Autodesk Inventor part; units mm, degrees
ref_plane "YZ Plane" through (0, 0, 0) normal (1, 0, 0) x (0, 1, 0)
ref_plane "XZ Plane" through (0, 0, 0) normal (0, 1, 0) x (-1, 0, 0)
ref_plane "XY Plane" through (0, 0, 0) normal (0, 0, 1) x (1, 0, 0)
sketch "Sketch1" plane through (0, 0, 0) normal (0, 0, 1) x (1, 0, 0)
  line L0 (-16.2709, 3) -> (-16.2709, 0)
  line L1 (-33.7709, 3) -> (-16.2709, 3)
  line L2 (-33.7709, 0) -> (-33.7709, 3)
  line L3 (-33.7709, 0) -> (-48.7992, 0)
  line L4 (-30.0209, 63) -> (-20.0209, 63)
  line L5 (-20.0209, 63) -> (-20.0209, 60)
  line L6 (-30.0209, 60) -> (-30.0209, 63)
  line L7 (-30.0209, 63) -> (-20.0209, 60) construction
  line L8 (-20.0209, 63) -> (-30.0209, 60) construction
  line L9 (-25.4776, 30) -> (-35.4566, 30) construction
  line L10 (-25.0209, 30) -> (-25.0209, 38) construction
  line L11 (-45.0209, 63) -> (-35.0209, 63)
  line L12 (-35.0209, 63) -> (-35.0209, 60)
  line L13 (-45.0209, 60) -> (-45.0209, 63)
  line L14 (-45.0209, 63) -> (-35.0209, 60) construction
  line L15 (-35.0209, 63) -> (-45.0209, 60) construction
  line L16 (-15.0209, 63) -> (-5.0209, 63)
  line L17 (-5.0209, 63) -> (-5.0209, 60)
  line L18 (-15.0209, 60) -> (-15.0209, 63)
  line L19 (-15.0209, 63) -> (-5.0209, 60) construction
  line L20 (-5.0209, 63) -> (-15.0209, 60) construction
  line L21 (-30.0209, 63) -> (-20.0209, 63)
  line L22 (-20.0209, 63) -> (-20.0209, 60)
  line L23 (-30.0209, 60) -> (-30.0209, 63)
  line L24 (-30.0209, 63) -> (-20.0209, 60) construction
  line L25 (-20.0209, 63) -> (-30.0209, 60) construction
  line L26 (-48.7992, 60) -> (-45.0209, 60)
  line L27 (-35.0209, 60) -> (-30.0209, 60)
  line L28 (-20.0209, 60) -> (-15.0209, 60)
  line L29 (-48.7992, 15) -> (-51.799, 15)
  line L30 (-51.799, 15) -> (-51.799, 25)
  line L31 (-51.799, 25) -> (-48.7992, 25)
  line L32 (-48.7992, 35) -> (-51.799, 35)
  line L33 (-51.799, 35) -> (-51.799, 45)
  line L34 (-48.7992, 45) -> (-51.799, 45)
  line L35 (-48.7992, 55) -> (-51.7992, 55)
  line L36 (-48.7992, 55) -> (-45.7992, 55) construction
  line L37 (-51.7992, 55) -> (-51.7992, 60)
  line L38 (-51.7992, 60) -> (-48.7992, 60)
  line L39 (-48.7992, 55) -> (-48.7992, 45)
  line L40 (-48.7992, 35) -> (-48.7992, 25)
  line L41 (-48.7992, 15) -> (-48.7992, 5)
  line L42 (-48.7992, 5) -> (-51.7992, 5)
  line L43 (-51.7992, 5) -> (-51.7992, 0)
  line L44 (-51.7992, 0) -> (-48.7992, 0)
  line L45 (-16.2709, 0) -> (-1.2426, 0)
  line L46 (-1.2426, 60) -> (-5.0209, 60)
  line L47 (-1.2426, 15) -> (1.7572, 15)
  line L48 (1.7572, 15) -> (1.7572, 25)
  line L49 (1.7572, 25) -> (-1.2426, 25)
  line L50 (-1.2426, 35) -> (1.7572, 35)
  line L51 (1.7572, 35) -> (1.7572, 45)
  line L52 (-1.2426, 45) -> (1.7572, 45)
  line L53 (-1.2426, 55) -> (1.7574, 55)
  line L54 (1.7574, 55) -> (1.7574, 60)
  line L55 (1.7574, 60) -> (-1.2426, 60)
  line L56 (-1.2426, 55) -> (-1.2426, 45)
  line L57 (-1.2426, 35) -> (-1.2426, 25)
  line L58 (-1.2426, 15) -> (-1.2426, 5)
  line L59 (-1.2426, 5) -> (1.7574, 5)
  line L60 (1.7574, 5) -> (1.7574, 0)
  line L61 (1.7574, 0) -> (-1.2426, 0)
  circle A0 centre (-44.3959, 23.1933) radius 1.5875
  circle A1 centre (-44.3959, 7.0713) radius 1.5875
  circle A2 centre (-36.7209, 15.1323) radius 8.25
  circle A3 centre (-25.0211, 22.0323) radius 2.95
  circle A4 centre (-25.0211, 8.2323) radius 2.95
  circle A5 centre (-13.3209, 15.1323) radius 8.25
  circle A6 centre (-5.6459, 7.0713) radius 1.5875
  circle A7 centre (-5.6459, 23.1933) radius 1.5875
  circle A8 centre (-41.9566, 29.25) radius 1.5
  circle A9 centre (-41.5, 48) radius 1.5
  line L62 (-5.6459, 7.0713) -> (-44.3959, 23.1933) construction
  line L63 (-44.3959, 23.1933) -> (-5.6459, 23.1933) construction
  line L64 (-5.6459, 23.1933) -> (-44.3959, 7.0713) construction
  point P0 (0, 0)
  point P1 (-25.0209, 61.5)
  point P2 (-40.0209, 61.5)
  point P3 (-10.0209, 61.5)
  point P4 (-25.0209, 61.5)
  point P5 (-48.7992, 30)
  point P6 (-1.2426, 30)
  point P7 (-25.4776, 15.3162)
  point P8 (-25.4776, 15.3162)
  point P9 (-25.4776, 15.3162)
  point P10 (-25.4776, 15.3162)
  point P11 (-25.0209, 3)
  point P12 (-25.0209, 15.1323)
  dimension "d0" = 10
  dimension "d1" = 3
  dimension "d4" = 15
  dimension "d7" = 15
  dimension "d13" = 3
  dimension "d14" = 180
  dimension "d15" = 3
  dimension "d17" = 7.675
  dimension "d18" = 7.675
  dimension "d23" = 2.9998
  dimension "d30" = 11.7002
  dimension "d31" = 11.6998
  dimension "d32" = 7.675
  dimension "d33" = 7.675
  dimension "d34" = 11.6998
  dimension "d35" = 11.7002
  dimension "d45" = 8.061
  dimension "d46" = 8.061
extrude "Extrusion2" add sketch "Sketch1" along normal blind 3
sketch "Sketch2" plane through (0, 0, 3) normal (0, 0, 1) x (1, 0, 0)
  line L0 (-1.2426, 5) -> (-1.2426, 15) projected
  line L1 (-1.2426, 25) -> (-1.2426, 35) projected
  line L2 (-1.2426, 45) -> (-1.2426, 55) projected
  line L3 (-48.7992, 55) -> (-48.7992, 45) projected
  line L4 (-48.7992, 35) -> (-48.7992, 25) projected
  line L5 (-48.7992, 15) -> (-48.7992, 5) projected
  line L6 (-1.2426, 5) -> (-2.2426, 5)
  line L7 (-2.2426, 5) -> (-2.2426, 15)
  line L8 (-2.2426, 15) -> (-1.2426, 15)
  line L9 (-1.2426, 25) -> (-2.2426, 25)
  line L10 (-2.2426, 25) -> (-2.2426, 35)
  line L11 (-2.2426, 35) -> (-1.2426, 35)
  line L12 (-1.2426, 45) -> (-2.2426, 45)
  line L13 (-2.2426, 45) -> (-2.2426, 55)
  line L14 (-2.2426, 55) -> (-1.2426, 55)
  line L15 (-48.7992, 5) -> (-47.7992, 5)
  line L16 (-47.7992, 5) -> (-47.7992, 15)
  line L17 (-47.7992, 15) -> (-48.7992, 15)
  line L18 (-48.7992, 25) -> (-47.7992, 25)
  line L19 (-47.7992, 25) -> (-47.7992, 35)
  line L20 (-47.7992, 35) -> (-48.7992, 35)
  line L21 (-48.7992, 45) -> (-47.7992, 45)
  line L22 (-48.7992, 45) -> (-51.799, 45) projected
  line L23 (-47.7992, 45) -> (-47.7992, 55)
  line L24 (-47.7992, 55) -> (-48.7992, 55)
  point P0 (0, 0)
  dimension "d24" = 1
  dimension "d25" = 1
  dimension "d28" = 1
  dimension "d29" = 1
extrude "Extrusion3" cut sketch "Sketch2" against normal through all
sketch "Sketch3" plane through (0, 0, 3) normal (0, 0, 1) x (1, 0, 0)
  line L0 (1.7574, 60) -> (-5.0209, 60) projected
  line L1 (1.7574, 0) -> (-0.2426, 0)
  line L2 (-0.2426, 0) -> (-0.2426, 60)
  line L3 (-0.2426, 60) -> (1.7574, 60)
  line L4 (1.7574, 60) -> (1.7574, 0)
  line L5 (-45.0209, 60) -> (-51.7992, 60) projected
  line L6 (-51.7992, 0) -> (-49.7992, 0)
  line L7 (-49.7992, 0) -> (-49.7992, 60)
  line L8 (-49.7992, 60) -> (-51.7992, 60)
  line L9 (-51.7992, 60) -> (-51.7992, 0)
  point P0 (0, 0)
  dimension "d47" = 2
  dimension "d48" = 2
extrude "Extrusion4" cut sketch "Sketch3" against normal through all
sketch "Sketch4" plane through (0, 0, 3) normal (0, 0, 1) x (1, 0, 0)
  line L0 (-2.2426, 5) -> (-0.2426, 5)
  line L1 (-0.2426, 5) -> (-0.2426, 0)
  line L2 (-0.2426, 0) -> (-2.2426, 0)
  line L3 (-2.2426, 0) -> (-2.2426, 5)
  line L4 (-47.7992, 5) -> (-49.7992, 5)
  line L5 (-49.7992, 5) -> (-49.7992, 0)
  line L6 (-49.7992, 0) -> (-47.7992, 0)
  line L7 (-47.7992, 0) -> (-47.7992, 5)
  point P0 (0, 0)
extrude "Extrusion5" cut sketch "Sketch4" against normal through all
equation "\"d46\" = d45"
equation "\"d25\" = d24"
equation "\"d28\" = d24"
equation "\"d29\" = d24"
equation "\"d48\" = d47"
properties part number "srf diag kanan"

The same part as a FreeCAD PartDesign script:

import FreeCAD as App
import Part
import Sketcher
Q = App.Units.Quantity


def add_polygon(sketch, points):
    """Adds a closed chain of lines whose ends are joined by coincident constraints."""
    first, n = sketch.GeometryCount, len(points)
    for a, b in zip(points, points[1:] + points[:1]):
        sketch.addGeometry(Part.LineSegment(App.Vector(*a, 0), App.Vector(*b, 0)), False)
    for i in range(n):
        sketch.addConstraint(Sketcher.Constraint("Coincident", first + i, 2, first + (i + 1) % n, 1))

doc = App.newDocument("Part")
params = doc.addObject("Spreadsheet::Sheet", "Params")
for row, (alias, value) in enumerate([
    ("sketch1_diameter", "3 mm"),
    ("sketch1_width", "3 mm"),
    ("sketch1_width2", "10 mm"),
    ("sketch1_diameter2", "16.5 mm"),
    ("sketch1_diameter3", "5.9 mm"),
    ("pad1_length", "3 mm"),
    ("sketch2_width", "1 mm"),
    ("sketch2_height", "10 mm"),
    ("sketch3_width", "2 mm"),
    ("sketch3_height", "60 mm"),
    ("sketch4_width", "2 mm"),
    ("sketch4_height", "5 mm"),
], start=1):
    params.set(f"A{row}", alias)
    params.set(f"B{row}", "=" + value)
    params.setAlias(f"B{row}", alias)

body = doc.addObject("PartDesign::Body", "Body")

sketch1 = body.newObject("Sketcher::SketchObject", "Sketch")
sketch1.AttachmentSupport = (doc.getObject("XY_Plane"), [""])
sketch1.MapMode = "FlatFace"
add_polygon(sketch1, [(-33.8, 3), (-16.3, 3), (-16.3, 0), (1.8, 0), (1.8, 5), (-1.2, 5), (-1.2, 15), (1.8, 15), (1.8, 25), (-1.2, 25), (-1.2, 35), (1.8, 35), (1.8, 45), (-1.2, 45), (-1.2, 55), (1.8, 55), (1.8, 60), (-5, 60), (-5, 63), (-15, 63), (-15, 60), (-20, 60), (-20, 63), (-30, 63), (-30, 60), (-35, 60), (-35, 63), (-45, 63), (-45, 60), (-51.8, 60), (-51.8, 55), (-48.8, 55), (-48.8, 45), (-51.8, 45), (-51.8, 35), (-48.8, 35), (-48.8, 25), (-51.8, 25), (-51.8, 15), (-48.8, 15), (-48.8, 5), (-51.8, 5), (-51.8, 0), (-33.8, 0)])
sketch1.addGeometry(Part.Circle(App.Vector(-44.4, 7.1, 0), App.Vector(0, 0, 1), 1.6), False)
sketch1.addGeometry(Part.Circle(App.Vector(-36.7, 15.1, 0), App.Vector(0, 0, 1), 8.2), False)
sketch1.addGeometry(Part.Circle(App.Vector(-25, 8.2, 0), App.Vector(0, 0, 1), 3), False)
sketch1.addGeometry(Part.Circle(App.Vector(-44.4, 23.2, 0), App.Vector(0, 0, 1), 1.6), False)
sketch1.addGeometry(Part.Circle(App.Vector(-42, 29.2, 0), App.Vector(0, 0, 1), 1.5), False)
sketch1.addGeometry(Part.Circle(App.Vector(-25, 22, 0), App.Vector(0, 0, 1), 3), False)
sketch1.addGeometry(Part.Circle(App.Vector(-13.3, 15.1, 0), App.Vector(0, 0, 1), 8.2), False)
sketch1.addGeometry(Part.Circle(App.Vector(-5.6, 7.1, 0), App.Vector(0, 0, 1), 1.6), False)
sketch1.addGeometry(Part.Circle(App.Vector(-5.6, 23.2, 0), App.Vector(0, 0, 1), 1.6), False)
sketch1.addGeometry(Part.Circle(App.Vector(-41.5, 48, 0), App.Vector(0, 0, 1), 1.5), False)
sketch1.addConstraint([
    Sketcher.Constraint("Horizontal", 0),
    Sketcher.Constraint("Vertical", 1),
    Sketcher.Constraint("Horizontal", 2),
    Sketcher.Constraint("Vertical", 3),
    Sketcher.Constraint("Horizontal", 4),
    Sketcher.Constraint("Vertical", 5),
    Sketcher.Constraint("Horizontal", 6),
    Sketcher.Constraint("Vertical", 7),
    Sketcher.Constraint("Horizontal", 8),
    Sketcher.Constraint("Vertical", 9),
    Sketcher.Constraint("Horizontal", 10),
    Sketcher.Constraint("Vertical", 11),
    Sketcher.Constraint("Horizontal", 12),
    Sketcher.Constraint("Vertical", 13),
    Sketcher.Constraint("Horizontal", 14),
    Sketcher.Constraint("Vertical", 15),
    Sketcher.Constraint("Horizontal", 16),
    Sketcher.Constraint("Vertical", 17),
    Sketcher.Constraint("Horizontal", 18),
    Sketcher.Constraint("Vertical", 19),
    Sketcher.Constraint("Horizontal", 20),
    Sketcher.Constraint("Vertical", 21),
    Sketcher.Constraint("Horizontal", 22),
    Sketcher.Constraint("Vertical", 23),
    Sketcher.Constraint("Horizontal", 24),
    Sketcher.Constraint("Vertical", 25),
    Sketcher.Constraint("Horizontal", 26),
    Sketcher.Constraint("Vertical", 27),
    Sketcher.Constraint("Horizontal", 28),
    Sketcher.Constraint("Vertical", 29),
    Sketcher.Constraint("Horizontal", 30),
    Sketcher.Constraint("Vertical", 31),
    Sketcher.Constraint("Horizontal", 32),
    Sketcher.Constraint("Vertical", 33),
    Sketcher.Constraint("Horizontal", 34),
    Sketcher.Constraint("Vertical", 35),
    Sketcher.Constraint("Horizontal", 36),
    Sketcher.Constraint("Vertical", 37),
    Sketcher.Constraint("Horizontal", 38),
    Sketcher.Constraint("Vertical", 39),
    Sketcher.Constraint("Horizontal", 40),
    Sketcher.Constraint("Vertical", 41),
    Sketcher.Constraint("Horizontal", 42),
    Sketcher.Constraint("Vertical", 43),
    Sketcher.Constraint("Equal", 44, 47),
    Sketcher.Constraint("Equal", 46, 49),
    Sketcher.Constraint("Equal", 45, 50),
    Sketcher.Constraint("Equal", 47, 51),
    Sketcher.Constraint("Equal", 51, 52),
    Sketcher.Constraint("Equal", 48, 53),
    Sketcher.Constraint("PointOnObject", 1, 2, -1),
    Sketcher.Constraint("PointOnObject", 41, 2, -1),
    Sketcher.Constraint("Horizontal", 45, 3, 50, 3),
    Sketcher.Constraint("Horizontal", 44, 3, 51, 3),
    Sketcher.Constraint("Horizontal", 47, 3, 52, 3),
    Sketcher.Constraint("Horizontal", 16, 2, 19, 2),
    Sketcher.Constraint("Horizontal", 18, 2, 21, 2),
    Sketcher.Constraint("Horizontal", 20, 2, 23, 2),
    Sketcher.Constraint("Horizontal", 22, 2, 25, 2),
    Sketcher.Constraint("Horizontal", 24, 2, 27, 2),
    Sketcher.Constraint("Horizontal", 14, 2, 29, 2),
    Sketcher.Constraint("Horizontal", 12, 2, 31, 2),
    Sketcher.Constraint("Horizontal", 10, 2, 33, 2),
    Sketcher.Constraint("Horizontal", 8, 2, 35, 2),
    Sketcher.Constraint("Horizontal", 6, 2, 37, 2),
    Sketcher.Constraint("Horizontal", 4, 2, 39, 2),
    Sketcher.Constraint("Vertical", 44, 3, 47, 3),
    Sketcher.Constraint("Vertical", 46, 3, 49, 3),
    Sketcher.Constraint("Vertical", 51, 3, 52, 3),
    Sketcher.Constraint("Vertical", 3, 2, 6, 2),
    Sketcher.Constraint("Vertical", 5, 2, 8, 2),
    Sketcher.Constraint("Vertical", 7, 2, 10, 2),
    Sketcher.Constraint("Vertical", 9, 2, 12, 2),
    Sketcher.Constraint("Vertical", 11, 2, 14, 2),
    Sketcher.Constraint("Vertical", 29, 2, 32, 2),
    Sketcher.Constraint("Vertical", 31, 2, 34, 2),
    Sketcher.Constraint("Vertical", 33, 2, 36, 2),
    Sketcher.Constraint("Vertical", 35, 2, 38, 2),
    Sketcher.Constraint("Vertical", 37, 2, 40, 2),
    Sketcher.Constraint("Equal", 18, 22),
    Sketcher.Constraint("Equal", 20, 24),
    Sketcher.Constraint("Equal", 22, 26),
    Sketcher.Constraint("Equal", 16, 28),
    Sketcher.Constraint("Equal", 14, 30),
    Sketcher.Constraint("Equal", 2, 42),
    Sketcher.Constraint("Equal", 40, 1),
    Sketcher.Constraint("Equal", 24, 3),
    Sketcher.Constraint("Equal", 26, 5),
    Sketcher.Constraint("Equal", 5, 7),
    Sketcher.Constraint("Equal", 7, 9),
    Sketcher.Constraint("Equal", 9, 11),
    Sketcher.Constraint("Equal", 11, 13),
    Sketcher.Constraint("Equal", 3, 15),
    Sketcher.Constraint("Equal", 1, 17),
    Sketcher.Constraint("Diameter", 48, Q("3 mm")),
    Sketcher.Constraint("DistanceX", 4, 2, 4, 1, Q("3 mm")),
    Sketcher.Constraint("DistanceX", 18, 2, 18, 1, Q("10 mm")),
    Sketcher.Constraint("DistanceY", -1, 1, 5, 2, Q("15 mm")),
    Sketcher.Constraint("DistanceY", 53, 3, 22, 2, Q("15 mm")),
    Sketcher.Constraint("Diameter", 45, Q("16.5 mm")),
    Sketcher.Constraint("Diameter", 46, Q("5.9 mm")),
    Sketcher.Constraint("Diameter", 44, Q("3.175 mm")),
    Sketcher.Constraint("DistanceX", 0, 1, 0, 2, Q("17.5 mm")),
    Sketcher.Constraint("DistanceX", 44, 3, 45, 3, Q("7.675 mm")),
    Sketcher.Constraint("DistanceY", 44, 3, 45, 3, Q("8.061 mm")),
    Sketcher.Constraint("DistanceY", 45, 3, 47, 3, Q("8.061 mm")),
    Sketcher.Constraint("DistanceX", 50, 3, 51, 3, Q("7.675 mm")),
    Sketcher.Constraint("DistanceX", 53, 3, -1, 1, Q("41.5 mm")),
    Sketcher.Constraint("DistanceX", 45, 3, 46, 3, Q("11.6998 mm")),
    Sketcher.Constraint("DistanceY", 46, 3, 45, 3, Q("6.9 mm")),
    Sketcher.Constraint("DistanceY", 45, 3, 49, 3, Q("6.9 mm")),
    Sketcher.Constraint("DistanceX", 46, 3, 50, 3, Q("11.7002 mm")),
    Sketcher.Constraint("DistanceY", -1, 1, 48, 3, Q("29.25 mm")),
    Sketcher.Constraint("DistanceX", 0, 2, 50, 3, Q("2.95 mm")),
    Sketcher.Constraint("DistanceX", 2, 1, 2, 2, Q("18.0283 mm")),
    Sketcher.Constraint("DistanceX", 44, 3, -1, 1, Q("44.396 mm")),
    Sketcher.Constraint("DistanceY", -1, 1, 44, 3, Q("7.0713 mm")),
    Sketcher.Constraint("DistanceX", 48, 3, -1, 1, Q("41.9566 mm")),
])
sketch1.setExpression("Constraints[138]", "Params.sketch1_diameter")
sketch1.setExpression("Constraints[139]", "Params.sketch1_width")
sketch1.setExpression("Constraints[140]", "Params.sketch1_width2")
sketch1.setExpression("Constraints[143]", "Params.sketch1_diameter2")
sketch1.setExpression("Constraints[144]", "Params.sketch1_diameter3")
pad1 = body.newObject("PartDesign::Pad", "Pad")
pad1.Profile = sketch1
pad1.setExpression("Length", "Params.pad1_length")

sketch2 = body.newObject("Sketcher::SketchObject", "Sketch001")
sketch2.AttachmentSupport = (doc.getObject("XY_Plane"), [""])
sketch2.MapMode = "FlatFace"
sketch2.AttachmentOffset = App.Placement(App.Vector(0, 0, 3), App.Rotation())
add_polygon(sketch2, [(-2.2, 5), (-1.2, 5), (-1.2, 15), (-2.2, 15)])
add_polygon(sketch2, [(-2.2, 25), (-1.2, 25), (-1.2, 35), (-2.2, 35)])
add_polygon(sketch2, [(-2.2, 45), (-1.2, 45), (-1.2, 55), (-2.2, 55)])
add_polygon(sketch2, [(-47.8, 55), (-48.8, 55), (-48.8, 45), (-47.8, 45)])
add_polygon(sketch2, [(-47.8, 35), (-48.8, 35), (-48.8, 25), (-47.8, 25)])
add_polygon(sketch2, [(-47.8, 15), (-48.8, 15), (-48.8, 5), (-47.8, 5)])
sketch2.addConstraint([
    Sketcher.Constraint("Horizontal", 0),
    Sketcher.Constraint("Vertical", 1),
    Sketcher.Constraint("Horizontal", 2),
    Sketcher.Constraint("Vertical", 3),
    Sketcher.Constraint("Horizontal", 4),
    Sketcher.Constraint("Vertical", 5),
    Sketcher.Constraint("Horizontal", 6),
    Sketcher.Constraint("Vertical", 7),
    Sketcher.Constraint("Horizontal", 8),
    Sketcher.Constraint("Vertical", 9),
    Sketcher.Constraint("Horizontal", 10),
    Sketcher.Constraint("Vertical", 11),
    Sketcher.Constraint("Horizontal", 12),
    Sketcher.Constraint("Vertical", 13),
    Sketcher.Constraint("Horizontal", 14),
    Sketcher.Constraint("Vertical", 15),
    Sketcher.Constraint("Horizontal", 16),
    Sketcher.Constraint("Vertical", 17),
    Sketcher.Constraint("Horizontal", 18),
    Sketcher.Constraint("Vertical", 19),
    Sketcher.Constraint("Horizontal", 20),
    Sketcher.Constraint("Vertical", 21),
    Sketcher.Constraint("Horizontal", 22),
    Sketcher.Constraint("Vertical", 23),
    Sketcher.Constraint("Horizontal", 10, 2, 12, 2),
    Sketcher.Constraint("Horizontal", 11, 2, 13, 2),
    Sketcher.Constraint("Horizontal", 6, 2, 16, 2),
    Sketcher.Constraint("Horizontal", 7, 2, 17, 2),
    Sketcher.Constraint("Horizontal", 2, 2, 20, 2),
    Sketcher.Constraint("Horizontal", 3, 2, 21, 2),
    Sketcher.Constraint("Vertical", 1, 2, 4, 2),
    Sketcher.Constraint("Vertical", 3, 2, 6, 2),
    Sketcher.Constraint("Vertical", 5, 2, 8, 2),
    Sketcher.Constraint("Vertical", 7, 2, 10, 2),
    Sketcher.Constraint("Vertical", 13, 2, 16, 2),
    Sketcher.Constraint("Vertical", 15, 2, 18, 2),
    Sketcher.Constraint("Vertical", 17, 2, 20, 2),
    Sketcher.Constraint("Vertical", 19, 2, 22, 2),
    Sketcher.Constraint("Equal", 10, 12),
    Sketcher.Constraint("Equal", 3, 5),
    Sketcher.Constraint("Equal", 7, 9),
    Sketcher.Constraint("DistanceX", 0, 1, 0, 2, Q("1 mm")),
    Sketcher.Constraint("DistanceY", 1, 1, 1, 2, Q("10 mm")),
    Sketcher.Constraint("DistanceY", -1, 1, 0, 2, Q("5 mm")),
    Sketcher.Constraint("DistanceY", -1, 1, 4, 2, Q("25 mm")),
    Sketcher.Constraint("DistanceY", -1, 1, 8, 2, Q("45 mm")),
    Sketcher.Constraint("DistanceX", 0, 2, -1, 1, Q("1.2426 mm")),
    Sketcher.Constraint("DistanceX", 12, 2, -1, 1, Q("48.7992 mm")),
])
sketch2.setExpression("Constraints[65]", "Params.sketch2_width")
sketch2.setExpression("Constraints[66]", "Params.sketch2_height")
pocket1 = body.newObject("PartDesign::Pocket", "Pocket")
pocket1.Profile = sketch2
pocket1.Type = "ThroughAll"

sketch3 = body.newObject("Sketcher::SketchObject", "Sketch002")
sketch3.AttachmentSupport = (doc.getObject("XY_Plane"), [""])
sketch3.MapMode = "FlatFace"
sketch3.AttachmentOffset = App.Placement(App.Vector(0, 0, 3), App.Rotation())
add_polygon(sketch3, [(1.8, 0), (1.8, 60), (-0.2, 60), (-0.2, 0)])
add_polygon(sketch3, [(-49.8, 0), (-49.8, 60), (-51.8, 60), (-51.8, 0)])
sketch3.addConstraint([
    Sketcher.Constraint("Vertical", 0),
    Sketcher.Constraint("Horizontal", 1),
    Sketcher.Constraint("Vertical", 2),
    Sketcher.Constraint("Horizontal", 3),
    Sketcher.Constraint("Vertical", 4),
    Sketcher.Constraint("Horizontal", 5),
    Sketcher.Constraint("Vertical", 6),
    Sketcher.Constraint("Horizontal", 7),
    Sketcher.Constraint("PointOnObject", 2, 2, -1),
    Sketcher.Constraint("PointOnObject", 6, 2, -1),
    Sketcher.Constraint("Horizontal", 1, 2, 4, 2),
    Sketcher.Constraint("Equal", 3, 5),
    Sketcher.Constraint("DistanceX", 1, 2, 1, 1, Q("2 mm")),
    Sketcher.Constraint("DistanceY", 0, 1, 0, 2, Q("60 mm")),
    Sketcher.Constraint("DistanceX", -1, 1, 0, 2, Q("1.7574 mm")),
    Sketcher.Constraint("DistanceX", 4, 2, -1, 1, Q("49.7992 mm")),
])
sketch3.setExpression("Constraints[20]", "Params.sketch3_width")
sketch3.setExpression("Constraints[21]", "Params.sketch3_height")
pocket2 = body.newObject("PartDesign::Pocket", "Pocket001")
pocket2.Profile = sketch3
pocket2.Type = "ThroughAll"

sketch4 = body.newObject("Sketcher::SketchObject", "Sketch003")
sketch4.AttachmentSupport = (doc.getObject("XY_Plane"), [""])
sketch4.MapMode = "FlatFace"
sketch4.AttachmentOffset = App.Placement(App.Vector(0, 0, 3), App.Rotation())
add_polygon(sketch4, [(-0.2, 5), (-2.2, 5), (-2.2, 0), (-0.2, 0)])
add_polygon(sketch4, [(-47.8, 0), (-47.8, 5), (-49.8, 5), (-49.8, 0)])
sketch4.addConstraint([
    Sketcher.Constraint("Horizontal", 0),
    Sketcher.Constraint("Vertical", 1),
    Sketcher.Constraint("Horizontal", 2),
    Sketcher.Constraint("Vertical", 3),
    Sketcher.Constraint("Vertical", 4),
    Sketcher.Constraint("Horizontal", 5),
    Sketcher.Constraint("Vertical", 6),
    Sketcher.Constraint("Horizontal", 7),
    Sketcher.Constraint("PointOnObject", 1, 2, -1),
    Sketcher.Constraint("PointOnObject", 6, 2, -1),
    Sketcher.Constraint("Horizontal", 3, 2, 4, 2),
    Sketcher.Constraint("Equal", 2, 5),
    Sketcher.Constraint("DistanceX", 0, 2, 0, 1, Q("2 mm")),
    Sketcher.Constraint("DistanceY", 1, 2, 1, 1, Q("5 mm")),
    Sketcher.Constraint("DistanceX", 0, 2, -1, 1, Q("2.2426 mm")),
    Sketcher.Constraint("DistanceX", 4, 2, -1, 1, Q("47.7992 mm")),
])
sketch4.setExpression("Constraints[20]", "Params.sketch4_width")
sketch4.setExpression("Constraints[21]", "Params.sketch4_height")
pocket3 = body.newObject("PartDesign::Pocket", "Pocket002")
pocket3.Profile = sketch4
pocket3.Type = "ThroughAll"

doc.recompute()
